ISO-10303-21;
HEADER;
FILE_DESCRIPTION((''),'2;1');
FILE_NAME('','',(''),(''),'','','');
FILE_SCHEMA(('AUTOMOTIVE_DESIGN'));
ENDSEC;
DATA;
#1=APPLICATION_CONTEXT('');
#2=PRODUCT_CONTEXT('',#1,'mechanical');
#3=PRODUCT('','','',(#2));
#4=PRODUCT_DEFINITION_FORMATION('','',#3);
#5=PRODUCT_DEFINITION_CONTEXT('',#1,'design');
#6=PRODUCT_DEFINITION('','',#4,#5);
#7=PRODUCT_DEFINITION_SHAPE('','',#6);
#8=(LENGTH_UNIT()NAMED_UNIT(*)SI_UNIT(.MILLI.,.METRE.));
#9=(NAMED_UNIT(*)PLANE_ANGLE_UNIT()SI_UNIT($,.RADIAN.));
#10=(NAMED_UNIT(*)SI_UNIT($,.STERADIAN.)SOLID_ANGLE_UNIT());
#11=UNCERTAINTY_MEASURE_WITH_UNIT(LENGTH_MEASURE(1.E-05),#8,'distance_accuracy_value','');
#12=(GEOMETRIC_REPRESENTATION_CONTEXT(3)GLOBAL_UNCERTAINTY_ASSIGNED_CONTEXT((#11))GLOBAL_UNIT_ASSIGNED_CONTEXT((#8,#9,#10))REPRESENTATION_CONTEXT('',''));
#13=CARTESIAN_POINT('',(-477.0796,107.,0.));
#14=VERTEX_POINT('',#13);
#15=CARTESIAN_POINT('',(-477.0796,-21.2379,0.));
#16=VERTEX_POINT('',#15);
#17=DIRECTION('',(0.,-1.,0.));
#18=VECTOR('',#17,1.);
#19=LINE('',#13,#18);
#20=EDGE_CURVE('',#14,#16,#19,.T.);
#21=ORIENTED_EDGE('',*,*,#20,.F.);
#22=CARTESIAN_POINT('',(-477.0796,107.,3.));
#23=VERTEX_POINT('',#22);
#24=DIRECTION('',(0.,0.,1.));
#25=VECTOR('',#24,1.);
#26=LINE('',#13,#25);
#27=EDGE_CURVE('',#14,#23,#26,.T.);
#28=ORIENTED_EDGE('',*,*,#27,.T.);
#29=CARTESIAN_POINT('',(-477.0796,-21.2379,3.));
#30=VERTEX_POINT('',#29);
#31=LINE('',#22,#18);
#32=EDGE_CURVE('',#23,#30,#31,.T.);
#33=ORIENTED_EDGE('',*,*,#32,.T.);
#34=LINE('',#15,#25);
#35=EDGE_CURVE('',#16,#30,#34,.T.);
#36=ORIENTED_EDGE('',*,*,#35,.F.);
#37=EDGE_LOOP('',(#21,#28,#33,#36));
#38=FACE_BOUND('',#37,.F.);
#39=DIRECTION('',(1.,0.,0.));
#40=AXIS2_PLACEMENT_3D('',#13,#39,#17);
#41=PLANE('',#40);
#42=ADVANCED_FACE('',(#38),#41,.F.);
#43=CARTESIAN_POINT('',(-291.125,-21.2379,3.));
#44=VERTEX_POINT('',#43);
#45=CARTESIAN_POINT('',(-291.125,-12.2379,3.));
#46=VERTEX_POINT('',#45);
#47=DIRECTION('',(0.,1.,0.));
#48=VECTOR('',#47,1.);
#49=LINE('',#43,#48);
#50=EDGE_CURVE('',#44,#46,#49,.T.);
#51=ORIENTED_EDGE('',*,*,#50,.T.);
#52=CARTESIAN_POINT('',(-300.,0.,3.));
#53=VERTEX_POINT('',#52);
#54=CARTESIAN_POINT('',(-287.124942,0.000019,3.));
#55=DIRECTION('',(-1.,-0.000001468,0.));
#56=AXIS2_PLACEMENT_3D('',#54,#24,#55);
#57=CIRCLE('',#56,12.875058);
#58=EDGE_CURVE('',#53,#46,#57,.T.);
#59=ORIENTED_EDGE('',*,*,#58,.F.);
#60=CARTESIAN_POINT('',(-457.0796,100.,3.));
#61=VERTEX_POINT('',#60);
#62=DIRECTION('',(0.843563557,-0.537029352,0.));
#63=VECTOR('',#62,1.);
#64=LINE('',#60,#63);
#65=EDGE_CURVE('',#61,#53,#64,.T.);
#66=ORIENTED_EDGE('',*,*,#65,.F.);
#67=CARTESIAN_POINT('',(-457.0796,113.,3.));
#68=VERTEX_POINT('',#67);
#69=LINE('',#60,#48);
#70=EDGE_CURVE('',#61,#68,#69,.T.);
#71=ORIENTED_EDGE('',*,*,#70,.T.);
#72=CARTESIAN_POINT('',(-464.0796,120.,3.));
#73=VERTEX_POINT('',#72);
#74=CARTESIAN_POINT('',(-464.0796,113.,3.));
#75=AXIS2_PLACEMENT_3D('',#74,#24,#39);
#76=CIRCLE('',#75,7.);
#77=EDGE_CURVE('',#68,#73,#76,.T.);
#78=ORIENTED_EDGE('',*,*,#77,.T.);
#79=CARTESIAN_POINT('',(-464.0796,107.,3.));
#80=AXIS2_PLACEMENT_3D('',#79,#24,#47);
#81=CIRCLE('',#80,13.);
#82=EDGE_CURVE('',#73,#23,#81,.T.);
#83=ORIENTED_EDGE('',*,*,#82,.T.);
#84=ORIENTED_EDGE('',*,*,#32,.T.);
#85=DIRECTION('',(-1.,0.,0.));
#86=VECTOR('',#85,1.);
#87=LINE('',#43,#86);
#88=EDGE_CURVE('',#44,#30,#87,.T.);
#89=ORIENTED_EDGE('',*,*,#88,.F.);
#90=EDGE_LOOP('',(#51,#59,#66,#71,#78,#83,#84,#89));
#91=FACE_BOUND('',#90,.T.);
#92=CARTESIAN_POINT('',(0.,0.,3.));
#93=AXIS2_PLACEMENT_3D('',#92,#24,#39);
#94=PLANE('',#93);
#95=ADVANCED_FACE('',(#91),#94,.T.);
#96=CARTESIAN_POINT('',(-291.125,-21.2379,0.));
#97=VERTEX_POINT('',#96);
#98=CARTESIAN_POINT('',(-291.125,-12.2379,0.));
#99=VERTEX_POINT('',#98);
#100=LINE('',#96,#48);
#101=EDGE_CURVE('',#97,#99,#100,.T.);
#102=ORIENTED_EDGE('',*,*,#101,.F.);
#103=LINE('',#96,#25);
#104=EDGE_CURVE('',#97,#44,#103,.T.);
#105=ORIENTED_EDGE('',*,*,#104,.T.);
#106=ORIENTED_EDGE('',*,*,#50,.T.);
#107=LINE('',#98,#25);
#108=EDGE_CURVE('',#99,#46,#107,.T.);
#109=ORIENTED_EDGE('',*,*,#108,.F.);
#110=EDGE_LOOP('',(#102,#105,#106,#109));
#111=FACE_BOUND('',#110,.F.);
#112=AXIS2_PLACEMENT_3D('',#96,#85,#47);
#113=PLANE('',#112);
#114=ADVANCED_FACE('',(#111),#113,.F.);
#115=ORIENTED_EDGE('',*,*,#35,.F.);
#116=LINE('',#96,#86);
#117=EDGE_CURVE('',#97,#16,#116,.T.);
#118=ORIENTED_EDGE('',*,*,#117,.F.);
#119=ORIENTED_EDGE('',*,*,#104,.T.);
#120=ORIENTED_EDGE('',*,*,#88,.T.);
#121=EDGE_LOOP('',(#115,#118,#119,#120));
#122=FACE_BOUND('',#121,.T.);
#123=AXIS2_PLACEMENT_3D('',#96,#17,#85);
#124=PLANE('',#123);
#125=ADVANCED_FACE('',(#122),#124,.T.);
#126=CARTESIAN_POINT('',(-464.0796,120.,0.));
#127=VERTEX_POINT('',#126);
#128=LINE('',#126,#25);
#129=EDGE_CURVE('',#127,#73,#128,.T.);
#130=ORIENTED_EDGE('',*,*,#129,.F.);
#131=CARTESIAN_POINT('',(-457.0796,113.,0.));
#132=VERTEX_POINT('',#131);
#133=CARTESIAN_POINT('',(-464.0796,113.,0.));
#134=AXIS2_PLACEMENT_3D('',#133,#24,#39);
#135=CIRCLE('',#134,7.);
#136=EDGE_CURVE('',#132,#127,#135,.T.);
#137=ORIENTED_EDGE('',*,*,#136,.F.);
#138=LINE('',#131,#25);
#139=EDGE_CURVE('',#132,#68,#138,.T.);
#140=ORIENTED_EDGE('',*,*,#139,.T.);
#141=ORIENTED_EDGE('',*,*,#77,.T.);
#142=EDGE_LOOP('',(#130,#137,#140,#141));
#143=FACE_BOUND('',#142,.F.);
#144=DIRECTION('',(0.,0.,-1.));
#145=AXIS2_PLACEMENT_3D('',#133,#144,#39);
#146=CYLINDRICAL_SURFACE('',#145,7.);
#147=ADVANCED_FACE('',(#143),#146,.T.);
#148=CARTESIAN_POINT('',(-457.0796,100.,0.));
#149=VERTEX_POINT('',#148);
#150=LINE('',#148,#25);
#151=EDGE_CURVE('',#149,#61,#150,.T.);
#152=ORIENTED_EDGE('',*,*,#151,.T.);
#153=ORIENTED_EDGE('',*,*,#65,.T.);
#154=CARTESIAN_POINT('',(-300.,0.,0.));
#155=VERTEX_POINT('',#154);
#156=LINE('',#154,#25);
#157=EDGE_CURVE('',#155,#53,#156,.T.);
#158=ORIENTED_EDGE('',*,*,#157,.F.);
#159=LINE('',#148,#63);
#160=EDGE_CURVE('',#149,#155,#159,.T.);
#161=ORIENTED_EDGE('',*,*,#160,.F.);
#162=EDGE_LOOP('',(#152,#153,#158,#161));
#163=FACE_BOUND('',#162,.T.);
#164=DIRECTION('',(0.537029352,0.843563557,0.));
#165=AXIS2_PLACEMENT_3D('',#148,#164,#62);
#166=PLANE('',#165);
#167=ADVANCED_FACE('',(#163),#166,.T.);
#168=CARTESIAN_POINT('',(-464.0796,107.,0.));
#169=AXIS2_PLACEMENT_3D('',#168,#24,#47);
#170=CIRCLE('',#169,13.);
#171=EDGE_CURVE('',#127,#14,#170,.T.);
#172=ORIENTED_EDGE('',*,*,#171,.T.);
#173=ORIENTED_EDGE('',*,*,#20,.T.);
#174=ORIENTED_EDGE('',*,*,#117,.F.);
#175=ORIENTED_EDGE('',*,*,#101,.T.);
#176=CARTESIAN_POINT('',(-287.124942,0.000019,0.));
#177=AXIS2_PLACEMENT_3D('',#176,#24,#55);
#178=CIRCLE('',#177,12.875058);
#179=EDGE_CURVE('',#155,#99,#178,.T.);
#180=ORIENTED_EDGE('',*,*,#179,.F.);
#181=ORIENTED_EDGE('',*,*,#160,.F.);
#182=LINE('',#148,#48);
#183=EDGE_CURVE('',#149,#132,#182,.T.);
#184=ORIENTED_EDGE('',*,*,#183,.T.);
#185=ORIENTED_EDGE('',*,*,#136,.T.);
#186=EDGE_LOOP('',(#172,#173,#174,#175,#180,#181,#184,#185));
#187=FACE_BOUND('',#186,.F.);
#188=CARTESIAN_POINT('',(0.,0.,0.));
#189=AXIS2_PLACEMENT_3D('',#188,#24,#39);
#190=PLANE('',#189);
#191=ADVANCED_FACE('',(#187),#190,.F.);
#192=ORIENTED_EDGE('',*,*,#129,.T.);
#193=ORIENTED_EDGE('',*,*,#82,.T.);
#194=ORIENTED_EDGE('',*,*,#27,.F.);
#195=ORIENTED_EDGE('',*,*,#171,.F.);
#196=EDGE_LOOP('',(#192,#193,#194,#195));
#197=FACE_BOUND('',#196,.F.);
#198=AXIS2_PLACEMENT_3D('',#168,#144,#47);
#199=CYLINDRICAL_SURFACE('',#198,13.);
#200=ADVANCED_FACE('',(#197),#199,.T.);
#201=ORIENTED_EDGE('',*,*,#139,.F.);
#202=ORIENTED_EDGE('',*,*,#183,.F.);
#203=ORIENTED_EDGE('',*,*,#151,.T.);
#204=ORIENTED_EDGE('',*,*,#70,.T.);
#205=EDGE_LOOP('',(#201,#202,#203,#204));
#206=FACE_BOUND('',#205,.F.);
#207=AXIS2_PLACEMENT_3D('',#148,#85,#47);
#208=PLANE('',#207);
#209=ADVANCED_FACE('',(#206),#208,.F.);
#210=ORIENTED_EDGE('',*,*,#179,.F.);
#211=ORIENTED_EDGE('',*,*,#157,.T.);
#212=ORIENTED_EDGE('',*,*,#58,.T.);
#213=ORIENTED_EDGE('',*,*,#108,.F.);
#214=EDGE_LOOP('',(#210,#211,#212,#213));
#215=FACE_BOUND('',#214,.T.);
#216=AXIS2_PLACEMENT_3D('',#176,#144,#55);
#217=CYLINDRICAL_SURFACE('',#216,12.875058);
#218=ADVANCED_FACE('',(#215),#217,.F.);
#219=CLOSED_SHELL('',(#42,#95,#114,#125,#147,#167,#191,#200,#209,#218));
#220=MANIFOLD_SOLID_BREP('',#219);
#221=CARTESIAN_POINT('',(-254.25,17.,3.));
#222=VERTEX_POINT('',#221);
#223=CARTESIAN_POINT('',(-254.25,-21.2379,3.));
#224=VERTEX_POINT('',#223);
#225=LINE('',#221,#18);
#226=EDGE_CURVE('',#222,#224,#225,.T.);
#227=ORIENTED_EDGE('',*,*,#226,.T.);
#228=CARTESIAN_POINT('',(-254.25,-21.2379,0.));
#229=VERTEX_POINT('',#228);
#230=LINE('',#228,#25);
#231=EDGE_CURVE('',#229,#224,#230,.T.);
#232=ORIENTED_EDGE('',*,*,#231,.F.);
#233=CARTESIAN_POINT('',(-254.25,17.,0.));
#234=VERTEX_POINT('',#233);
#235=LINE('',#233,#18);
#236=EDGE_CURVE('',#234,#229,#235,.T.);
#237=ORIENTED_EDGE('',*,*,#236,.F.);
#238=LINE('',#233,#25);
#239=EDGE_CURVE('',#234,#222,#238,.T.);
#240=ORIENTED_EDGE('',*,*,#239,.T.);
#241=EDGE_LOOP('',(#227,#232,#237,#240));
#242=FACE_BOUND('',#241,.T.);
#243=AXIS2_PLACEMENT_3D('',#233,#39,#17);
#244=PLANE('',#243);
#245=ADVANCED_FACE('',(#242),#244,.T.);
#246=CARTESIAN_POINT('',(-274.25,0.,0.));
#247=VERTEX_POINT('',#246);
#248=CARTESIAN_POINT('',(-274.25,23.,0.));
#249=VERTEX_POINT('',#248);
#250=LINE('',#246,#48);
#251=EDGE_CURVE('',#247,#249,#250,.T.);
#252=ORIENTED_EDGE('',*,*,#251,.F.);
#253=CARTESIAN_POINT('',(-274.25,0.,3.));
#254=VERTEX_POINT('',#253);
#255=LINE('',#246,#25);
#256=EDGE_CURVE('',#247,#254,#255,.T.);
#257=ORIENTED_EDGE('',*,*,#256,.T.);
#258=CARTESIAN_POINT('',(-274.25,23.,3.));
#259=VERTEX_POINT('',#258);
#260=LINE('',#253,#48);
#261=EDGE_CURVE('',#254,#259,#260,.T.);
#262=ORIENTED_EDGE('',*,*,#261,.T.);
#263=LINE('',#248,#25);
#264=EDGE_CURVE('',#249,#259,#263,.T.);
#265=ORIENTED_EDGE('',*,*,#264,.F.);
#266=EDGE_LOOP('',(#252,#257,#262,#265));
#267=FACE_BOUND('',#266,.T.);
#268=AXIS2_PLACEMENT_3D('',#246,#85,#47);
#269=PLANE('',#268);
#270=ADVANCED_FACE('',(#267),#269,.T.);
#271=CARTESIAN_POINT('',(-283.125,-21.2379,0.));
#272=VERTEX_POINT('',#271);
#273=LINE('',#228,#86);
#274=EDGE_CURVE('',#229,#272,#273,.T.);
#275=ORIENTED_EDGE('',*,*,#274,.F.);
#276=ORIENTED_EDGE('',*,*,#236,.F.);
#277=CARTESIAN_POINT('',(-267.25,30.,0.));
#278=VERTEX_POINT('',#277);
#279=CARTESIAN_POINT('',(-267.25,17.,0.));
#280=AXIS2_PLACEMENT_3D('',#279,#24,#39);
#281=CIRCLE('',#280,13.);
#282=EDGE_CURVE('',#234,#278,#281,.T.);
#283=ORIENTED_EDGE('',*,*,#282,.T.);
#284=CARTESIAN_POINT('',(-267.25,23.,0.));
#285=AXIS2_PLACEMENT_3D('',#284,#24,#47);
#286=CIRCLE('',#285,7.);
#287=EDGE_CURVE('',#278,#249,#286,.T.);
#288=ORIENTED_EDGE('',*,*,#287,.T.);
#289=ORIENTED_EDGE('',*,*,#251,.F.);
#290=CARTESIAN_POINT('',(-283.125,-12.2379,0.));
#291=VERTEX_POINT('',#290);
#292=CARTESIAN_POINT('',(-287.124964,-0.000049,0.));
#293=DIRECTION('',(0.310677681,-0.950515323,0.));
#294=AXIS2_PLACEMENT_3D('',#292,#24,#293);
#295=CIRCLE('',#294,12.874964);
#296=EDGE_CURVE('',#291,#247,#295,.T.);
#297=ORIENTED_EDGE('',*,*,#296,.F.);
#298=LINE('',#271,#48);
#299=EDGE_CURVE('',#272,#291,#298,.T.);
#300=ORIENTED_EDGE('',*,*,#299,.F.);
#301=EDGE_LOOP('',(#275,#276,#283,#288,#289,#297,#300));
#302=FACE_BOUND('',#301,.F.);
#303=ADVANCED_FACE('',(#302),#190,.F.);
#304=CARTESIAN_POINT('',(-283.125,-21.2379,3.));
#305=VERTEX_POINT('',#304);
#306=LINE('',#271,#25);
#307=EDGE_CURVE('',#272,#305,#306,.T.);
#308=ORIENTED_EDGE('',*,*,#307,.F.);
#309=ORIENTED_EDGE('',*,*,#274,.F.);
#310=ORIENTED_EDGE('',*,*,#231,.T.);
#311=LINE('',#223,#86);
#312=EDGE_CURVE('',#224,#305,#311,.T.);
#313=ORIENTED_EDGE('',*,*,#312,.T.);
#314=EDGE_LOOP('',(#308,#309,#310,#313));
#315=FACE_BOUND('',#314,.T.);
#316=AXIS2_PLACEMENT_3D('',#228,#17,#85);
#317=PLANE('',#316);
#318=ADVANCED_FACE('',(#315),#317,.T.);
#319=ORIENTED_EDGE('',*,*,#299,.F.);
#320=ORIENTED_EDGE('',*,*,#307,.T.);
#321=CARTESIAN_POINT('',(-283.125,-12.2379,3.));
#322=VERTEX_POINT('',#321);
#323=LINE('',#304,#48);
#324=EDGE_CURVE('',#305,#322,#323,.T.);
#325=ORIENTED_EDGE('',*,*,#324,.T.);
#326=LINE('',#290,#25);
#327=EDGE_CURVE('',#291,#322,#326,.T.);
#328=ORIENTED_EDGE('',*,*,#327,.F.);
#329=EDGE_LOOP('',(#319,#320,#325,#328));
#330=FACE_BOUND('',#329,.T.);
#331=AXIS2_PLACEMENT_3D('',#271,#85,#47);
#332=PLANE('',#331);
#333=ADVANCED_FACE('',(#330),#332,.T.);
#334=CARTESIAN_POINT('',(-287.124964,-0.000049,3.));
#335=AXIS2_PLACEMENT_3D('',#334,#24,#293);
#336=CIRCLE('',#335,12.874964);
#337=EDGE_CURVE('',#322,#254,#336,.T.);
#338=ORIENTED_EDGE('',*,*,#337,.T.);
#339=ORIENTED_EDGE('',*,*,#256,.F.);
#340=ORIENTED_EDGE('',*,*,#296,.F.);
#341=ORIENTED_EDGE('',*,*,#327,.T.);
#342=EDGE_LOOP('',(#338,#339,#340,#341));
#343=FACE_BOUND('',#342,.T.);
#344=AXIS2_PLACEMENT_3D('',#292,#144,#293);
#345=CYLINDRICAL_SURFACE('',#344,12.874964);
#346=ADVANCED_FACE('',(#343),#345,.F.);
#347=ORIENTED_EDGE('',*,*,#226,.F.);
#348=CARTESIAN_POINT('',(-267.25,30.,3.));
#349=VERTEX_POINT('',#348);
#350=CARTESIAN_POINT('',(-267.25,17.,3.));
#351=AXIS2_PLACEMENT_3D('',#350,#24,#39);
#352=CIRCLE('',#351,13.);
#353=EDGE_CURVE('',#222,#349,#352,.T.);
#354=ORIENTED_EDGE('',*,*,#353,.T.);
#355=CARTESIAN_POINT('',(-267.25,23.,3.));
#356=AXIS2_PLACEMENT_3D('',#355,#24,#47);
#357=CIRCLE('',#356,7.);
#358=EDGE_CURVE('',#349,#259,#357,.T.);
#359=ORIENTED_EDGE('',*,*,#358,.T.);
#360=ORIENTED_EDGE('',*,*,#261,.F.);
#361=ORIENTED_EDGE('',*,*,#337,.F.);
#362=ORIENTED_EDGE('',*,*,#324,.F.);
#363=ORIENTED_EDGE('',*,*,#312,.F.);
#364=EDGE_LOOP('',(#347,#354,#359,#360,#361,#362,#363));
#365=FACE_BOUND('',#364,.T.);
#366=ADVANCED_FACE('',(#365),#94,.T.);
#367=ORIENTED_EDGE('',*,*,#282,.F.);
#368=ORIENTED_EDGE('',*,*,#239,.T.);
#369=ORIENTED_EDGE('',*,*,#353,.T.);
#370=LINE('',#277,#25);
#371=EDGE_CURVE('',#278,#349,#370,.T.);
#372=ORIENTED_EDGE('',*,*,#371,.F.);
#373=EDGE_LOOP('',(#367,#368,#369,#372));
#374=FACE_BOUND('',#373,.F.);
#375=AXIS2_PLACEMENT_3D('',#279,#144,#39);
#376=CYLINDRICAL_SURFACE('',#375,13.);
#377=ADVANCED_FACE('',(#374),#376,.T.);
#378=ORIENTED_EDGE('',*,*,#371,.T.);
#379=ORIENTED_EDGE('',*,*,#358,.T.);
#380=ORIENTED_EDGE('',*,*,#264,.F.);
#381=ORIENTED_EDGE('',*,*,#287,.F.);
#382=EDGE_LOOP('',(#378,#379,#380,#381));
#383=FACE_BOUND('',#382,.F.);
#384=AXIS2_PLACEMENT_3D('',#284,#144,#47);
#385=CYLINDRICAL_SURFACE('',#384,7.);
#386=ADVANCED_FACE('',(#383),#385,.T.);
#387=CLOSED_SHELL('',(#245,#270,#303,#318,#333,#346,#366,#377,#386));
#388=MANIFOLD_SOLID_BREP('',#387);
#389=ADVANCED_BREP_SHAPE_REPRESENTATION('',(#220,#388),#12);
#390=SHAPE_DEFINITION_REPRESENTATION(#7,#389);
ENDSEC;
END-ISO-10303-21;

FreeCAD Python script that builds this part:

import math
import FreeCAD as App
import Part
import Sketcher

doc = App.newDocument("Part")
body = doc.addObject("PartDesign::Body", "Body")
body.AllowCompound = True

sketch1 = doc.addObject("Sketcher::SketchObject", "Sketch")
body.addObject(sketch1)
sketch1.AttachmentSupport = (doc.XY_Plane, [""])
sketch1.MapMode = "FlatFace"
sketch1.addGeometry(Part.LineSegment(App.Vector(-300, 0, 0), App.Vector(-457, 100, 0)), False)
sketch1.addGeometry(Part.LineSegment(App.Vector(-457, 100, 0), App.Vector(-457, 113, 0)), False)
sketch1.addGeometry(Part.ArcOfCircle(Part.Circle(App.Vector(-464, 113, 0), App.Vector(0, 0, 1), 7), math.radians(0), math.radians(90)), False)
sketch1.addGeometry(Part.ArcOfCircle(Part.Circle(App.Vector(-464, 107, 0), App.Vector(0, 0, 1), 13), math.radians(90), math.radians(180)), False)
sketch1.addGeometry(Part.LineSegment(App.Vector(-477, 107, 0), App.Vector(-477, -21, 0)), False)
sketch1.addGeometry(Part.LineSegment(App.Vector(-477, -21, 0), App.Vector(-291, -21, 0)), False)
sketch1.addGeometry(Part.LineSegment(App.Vector(-291, -21, 0), App.Vector(-291, -12, 0)), False)
sketch1.addGeometry(Part.ArcOfCircle(Part.Circle(App.Vector(-287, 0, 0), App.Vector(0, 0, 1), 13), math.radians(180), math.radians(252)), False)
sketch1.addGeometry(Part.LineSegment(App.Vector(-283, -12, 0), App.Vector(-283, -21, 0)), False)
sketch1.addGeometry(Part.LineSegment(App.Vector(-283, -21, 0), App.Vector(-254, -21, 0)), False)
sketch1.addGeometry(Part.LineSegment(App.Vector(-254, -21, 0), App.Vector(-254, 17, 0)), False)
sketch1.addGeometry(Part.ArcOfCircle(Part.Circle(App.Vector(-267, 17, 0), App.Vector(0, 0, 1), 13), math.radians(0), math.radians(90)), False)
sketch1.addGeometry(Part.ArcOfCircle(Part.Circle(App.Vector(-267, 23, 0), App.Vector(0, 0, 1), 7), math.radians(90), math.radians(180)), False)
sketch1.addGeometry(Part.LineSegment(App.Vector(-274, 23, 0), App.Vector(-274, 0, 0)), False)
sketch1.addGeometry(Part.ArcOfCircle(Part.Circle(App.Vector(-287, 0, 0), App.Vector(0, 0, 1), 13), math.radians(-72), math.radians(0)), False)
sketch1.addConstraint(Sketcher.Constraint("Coincident", 0, 2, 1, 1))
sketch1.addConstraint(Sketcher.Constraint("Tangent", 1, 2, 2, 1))
sketch1.addConstraint(Sketcher.Constraint("Tangent", 2, 2, 3, 1))
sketch1.addConstraint(Sketcher.Constraint("Tangent", 3, 2, 4, 1))
sketch1.addConstraint(Sketcher.Constraint("Coincident", 4, 2, 5, 1))
sketch1.addConstraint(Sketcher.Constraint("Coincident", 5, 2, 6, 1))
sketch1.addConstraint(Sketcher.Constraint("Coincident", 6, 2, 7, 2))
sketch1.addConstraint(Sketcher.Constraint("Coincident", 7, 1, 0, 1))
sketch1.addConstraint(Sketcher.Constraint("Coincident", 8, 2, 9, 1))
sketch1.addConstraint(Sketcher.Constraint("Coincident", 9, 2, 10, 1))
sketch1.addConstraint(Sketcher.Constraint("Tangent", 10, 2, 11, 1))
sketch1.addConstraint(Sketcher.Constraint("Tangent", 11, 2, 12, 1))
sketch1.addConstraint(Sketcher.Constraint("Tangent", 12, 2, 13, 1))
sketch1.addConstraint(Sketcher.Constraint("Tangent", 13, 2, 14, 2))
sketch1.addConstraint(Sketcher.Constraint("Coincident", 14, 1, 8, 1))
sketch1.addConstraint(Sketcher.Constraint("Vertical", 1))
sketch1.addConstraint(Sketcher.Constraint("Vertical", 4))
sketch1.addConstraint(Sketcher.Constraint("Horizontal", 5))
sketch1.addConstraint(Sketcher.Constraint("Vertical", 6))
sketch1.addConstraint(Sketcher.Constraint("Vertical", 8))
sketch1.addConstraint(Sketcher.Constraint("Horizontal", 9))
sketch1.addConstraint(Sketcher.Constraint("Vertical", 10))
sketch1.addConstraint(Sketcher.Constraint("Vertical", 13))
sketch1.addConstraint(Sketcher.Constraint("Coincident", 14, 3, 7, 3))
sketch1.addConstraint(Sketcher.Constraint("Equal", 3, 11))
sketch1.addConstraint(Sketcher.Constraint("Equal", 2, 12))
sketch1.addConstraint(Sketcher.Constraint("Equal", 7, 14))
sketch1.addConstraint(Sketcher.Constraint("PointOnObject", 7, 3, -1))
sketch1.addConstraint(Sketcher.Constraint("PointOnObject", 7, 1, -1))
sketch1.addConstraint(Sketcher.Constraint("Horizontal", 5, 2, 8, 2))
sketch1.addConstraint(Sketcher.Constraint("Horizontal", 6, 2, 14, 1))
sketch1.addConstraint(Sketcher.Constraint("Vertical", 2, 3, 3, 3))
sketch1.addConstraint(Sketcher.Constraint("Vertical", 11, 3, 12, 3))
sketch1.addConstraint(Sketcher.Constraint("DistanceY", 6, 1, 6, 2, 9.0))
sketch1.addConstraint(Sketcher.Constraint("DistanceY", -1, 1, 0, 2, 100.0))
sketch1.addConstraint(Sketcher.Constraint("DistanceY", -1, 1, 2, 2, 120.0))
sketch1.addConstraint(Sketcher.Constraint("DistanceX", 7, 1, -1, 1, 300.0))
sketch1.addConstraint(Sketcher.Constraint("DistanceY", -1, 1, 11, 2, 30.0))
sketch1.addConstraint(Sketcher.Constraint("Radius", 2, 7.0))
sketch1.addConstraint(Sketcher.Constraint("Radius", 3, 13.0))
sketch1.addConstraint(Sketcher.Constraint("Radius", 7, 12.875))
sketch1.addConstraint(Sketcher.Constraint("DistanceX", 5, 2, 8, 2, 8.0))
sketch1.addConstraint(Sketcher.Constraint("DistanceX", 5, 1, 5, 2, 185.9546))
pad1 = doc.addObject("PartDesign::Pad", "Pad")
body.addObject(pad1)
pad1.Profile = sketch1
pad1.Length = 3

doc.recompute()
